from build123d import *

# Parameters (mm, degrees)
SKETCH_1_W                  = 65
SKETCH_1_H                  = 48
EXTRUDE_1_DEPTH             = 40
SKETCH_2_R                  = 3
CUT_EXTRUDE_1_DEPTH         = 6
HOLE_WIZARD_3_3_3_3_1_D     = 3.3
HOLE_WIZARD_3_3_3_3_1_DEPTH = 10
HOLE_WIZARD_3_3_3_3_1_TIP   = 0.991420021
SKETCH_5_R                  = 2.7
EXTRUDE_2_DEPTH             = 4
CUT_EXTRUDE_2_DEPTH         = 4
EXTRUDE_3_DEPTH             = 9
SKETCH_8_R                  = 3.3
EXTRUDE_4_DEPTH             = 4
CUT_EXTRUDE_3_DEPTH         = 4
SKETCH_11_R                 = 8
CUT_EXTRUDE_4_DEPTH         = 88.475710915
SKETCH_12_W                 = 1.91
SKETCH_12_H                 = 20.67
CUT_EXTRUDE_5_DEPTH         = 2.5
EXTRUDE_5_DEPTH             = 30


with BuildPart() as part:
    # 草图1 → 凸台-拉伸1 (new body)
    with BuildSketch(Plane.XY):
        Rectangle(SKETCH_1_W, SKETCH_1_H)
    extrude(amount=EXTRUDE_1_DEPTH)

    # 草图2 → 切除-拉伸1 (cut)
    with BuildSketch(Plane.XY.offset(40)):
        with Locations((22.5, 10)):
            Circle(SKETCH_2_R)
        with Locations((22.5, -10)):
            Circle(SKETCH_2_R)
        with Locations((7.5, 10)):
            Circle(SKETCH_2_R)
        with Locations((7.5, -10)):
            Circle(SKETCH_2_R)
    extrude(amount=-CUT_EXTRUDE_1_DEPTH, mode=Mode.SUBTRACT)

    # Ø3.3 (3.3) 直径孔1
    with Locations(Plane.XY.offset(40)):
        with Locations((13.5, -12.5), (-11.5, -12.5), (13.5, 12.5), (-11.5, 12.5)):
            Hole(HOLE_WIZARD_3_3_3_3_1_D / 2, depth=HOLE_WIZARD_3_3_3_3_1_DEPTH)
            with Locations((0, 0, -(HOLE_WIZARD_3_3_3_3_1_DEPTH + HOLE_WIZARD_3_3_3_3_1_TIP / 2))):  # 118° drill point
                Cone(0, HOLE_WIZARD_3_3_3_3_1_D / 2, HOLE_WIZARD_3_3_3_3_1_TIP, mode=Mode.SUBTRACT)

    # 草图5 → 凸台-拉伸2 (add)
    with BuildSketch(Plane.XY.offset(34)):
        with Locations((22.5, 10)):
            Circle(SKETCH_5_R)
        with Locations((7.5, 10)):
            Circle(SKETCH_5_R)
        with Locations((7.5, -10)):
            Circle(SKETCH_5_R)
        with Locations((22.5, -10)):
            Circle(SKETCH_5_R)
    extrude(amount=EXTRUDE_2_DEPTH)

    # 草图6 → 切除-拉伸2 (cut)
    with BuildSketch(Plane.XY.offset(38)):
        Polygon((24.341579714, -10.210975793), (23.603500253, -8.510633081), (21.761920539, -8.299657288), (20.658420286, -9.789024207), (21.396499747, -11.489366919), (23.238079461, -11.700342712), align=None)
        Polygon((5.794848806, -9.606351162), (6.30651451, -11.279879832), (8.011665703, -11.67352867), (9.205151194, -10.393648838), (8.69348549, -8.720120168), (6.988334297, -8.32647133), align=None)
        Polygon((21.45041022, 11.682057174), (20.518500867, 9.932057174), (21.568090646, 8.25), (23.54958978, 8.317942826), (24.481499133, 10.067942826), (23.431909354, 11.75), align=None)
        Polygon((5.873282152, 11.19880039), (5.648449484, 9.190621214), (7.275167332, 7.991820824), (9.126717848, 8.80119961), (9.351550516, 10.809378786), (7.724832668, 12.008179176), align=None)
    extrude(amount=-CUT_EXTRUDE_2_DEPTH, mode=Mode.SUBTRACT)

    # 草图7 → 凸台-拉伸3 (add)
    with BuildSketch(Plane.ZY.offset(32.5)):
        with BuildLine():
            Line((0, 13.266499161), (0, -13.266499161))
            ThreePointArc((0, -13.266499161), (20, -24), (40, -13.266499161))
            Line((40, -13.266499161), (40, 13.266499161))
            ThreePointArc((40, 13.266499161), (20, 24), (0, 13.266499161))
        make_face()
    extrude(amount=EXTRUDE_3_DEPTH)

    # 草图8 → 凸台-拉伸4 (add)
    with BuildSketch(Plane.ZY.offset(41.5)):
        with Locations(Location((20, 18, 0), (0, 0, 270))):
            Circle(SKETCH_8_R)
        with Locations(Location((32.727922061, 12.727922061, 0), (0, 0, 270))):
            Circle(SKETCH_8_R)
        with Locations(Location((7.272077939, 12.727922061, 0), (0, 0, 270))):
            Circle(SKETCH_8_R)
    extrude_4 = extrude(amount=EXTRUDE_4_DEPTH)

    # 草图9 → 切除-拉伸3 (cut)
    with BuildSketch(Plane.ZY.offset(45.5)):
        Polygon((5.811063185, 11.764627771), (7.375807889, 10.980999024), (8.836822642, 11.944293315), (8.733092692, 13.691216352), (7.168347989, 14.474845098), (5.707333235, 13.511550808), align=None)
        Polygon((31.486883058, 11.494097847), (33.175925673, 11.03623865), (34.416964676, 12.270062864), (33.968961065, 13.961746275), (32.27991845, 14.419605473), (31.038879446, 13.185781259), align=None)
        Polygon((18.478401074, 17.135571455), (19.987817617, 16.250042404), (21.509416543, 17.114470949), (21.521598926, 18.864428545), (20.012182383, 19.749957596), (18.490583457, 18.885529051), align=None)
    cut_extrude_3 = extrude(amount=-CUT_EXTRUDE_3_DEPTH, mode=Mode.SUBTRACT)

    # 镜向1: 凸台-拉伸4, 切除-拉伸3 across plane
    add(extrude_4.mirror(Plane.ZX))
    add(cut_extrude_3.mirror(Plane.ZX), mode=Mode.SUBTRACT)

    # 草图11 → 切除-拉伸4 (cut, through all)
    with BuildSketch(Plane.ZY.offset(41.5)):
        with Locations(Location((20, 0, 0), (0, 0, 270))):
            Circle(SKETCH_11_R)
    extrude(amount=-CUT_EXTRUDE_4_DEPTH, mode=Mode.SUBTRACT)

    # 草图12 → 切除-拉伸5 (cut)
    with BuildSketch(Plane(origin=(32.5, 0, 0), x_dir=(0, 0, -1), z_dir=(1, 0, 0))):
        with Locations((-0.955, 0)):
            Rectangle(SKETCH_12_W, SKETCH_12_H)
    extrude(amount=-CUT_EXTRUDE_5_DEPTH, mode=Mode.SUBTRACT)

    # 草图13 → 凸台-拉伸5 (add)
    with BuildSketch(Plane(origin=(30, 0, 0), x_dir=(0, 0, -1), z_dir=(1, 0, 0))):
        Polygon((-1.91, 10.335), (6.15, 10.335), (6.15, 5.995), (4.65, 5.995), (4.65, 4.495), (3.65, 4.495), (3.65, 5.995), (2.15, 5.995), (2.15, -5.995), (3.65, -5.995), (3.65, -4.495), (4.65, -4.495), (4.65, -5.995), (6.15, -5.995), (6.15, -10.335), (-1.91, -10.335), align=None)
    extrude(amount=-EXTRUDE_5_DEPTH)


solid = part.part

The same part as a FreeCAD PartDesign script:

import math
import FreeCAD as App
import Part
import Sketcher

V = App.Vector
Q = App.Units.Quantity

doc = App.newDocument("Part")
params = doc.addObject("Spreadsheet::Sheet", "Params")
for row, (alias, value) in enumerate([
    ("sketch1_width", "65 mm"),
    ("sketch1_height", "48 mm"),
    ("pad1_length", "40 mm"),
    ("sketch2_diameter", "6 mm"),
    ("pocket1_length", "6 mm"),
    ("sketch3_diameter", "3.3 mm"),
    ("hole_diameter", "3.3 mm"),
    ("hole_depth", "10 mm"),
    ("sketch4_diameter", "5.4 mm"),
    ("pad2_length", "4 mm"),
    ("sketch5_length", "1.75 mm"),
    ("pocket2_length", "4 mm"),
    ("sketch6_radius", "24 mm"),
    ("pad3_length", "9 mm"),
    ("sketch7_diameter", "6.6 mm"),
    ("pad4_length", "4 mm"),
    ("sketch8_length", "1.75 mm"),
    ("pocket3_length", "4 mm"),
    ("sketch9_diameter", "16 mm"),
    ("sketch10_width", "20.67 mm"),
    ("sketch10_height", "1.91 mm"),
    ("pocket5_length", "2.5 mm"),
    ("sketch11_height", "1 mm"),
    ("sketch11_width", "1.5 mm"),
    ("sketch11_width2", "20.67 mm"),
    ("sketch11_width3", "4.34 mm"),
    ("sketch11_height2", "8.06 mm"),
    ("pad5_length", "30 mm"),
], start=1):
    params.set(f"A{row}", alias)
    params.set(f"B{row}", "=" + value)
    params.setAlias(f"B{row}", alias)

body = doc.addObject("PartDesign::Body", "Body")

# Sketch on XY plane
sketch1 = doc.addObject("Sketcher::SketchObject", "Sketch")
body.addObject(sketch1)
sketch1.AttachmentSupport = (doc.XY_Plane, [""])
sketch1.MapMode = "FlatFace"
sketch1.addGeometry([
    Part.LineSegment(V(-32.5, 24, 0), V(-32.5, -24, 0)),
    Part.LineSegment(V(-32.5, -24, 0), V(32.5, -24, 0)),
    Part.LineSegment(V(32.5, -24, 0), V(32.5, 24, 0)),
    Part.LineSegment(V(32.5, 24, 0), V(-32.5, 24, 0)),
], False)
sketch1.addConstraint([
    Sketcher.Constraint("Coincident", 0, 2, 1, 1),
    Sketcher.Constraint("Coincident", 1, 2, 2, 1),
    Sketcher.Constraint("Coincident", 2, 2, 3, 1),
    Sketcher.Constraint("Coincident", 3, 2, 0, 1),
    Sketcher.Constraint("Vertical", 0),
    Sketcher.Constraint("Horizontal", 1),
    Sketcher.Constraint("Vertical", 2),
    Sketcher.Constraint("Horizontal", 3),
    Sketcher.Constraint("Symmetric", 0, 2, 2, 2, -1, 1),
    Sketcher.Constraint("DistanceX", 1, 1, 1, 2, Q("65 mm")),
    Sketcher.Constraint("DistanceY", 0, 2, 0, 1, Q("48 mm")),
])
sketch1.setExpression("Constraints[9]", "Params.sketch1_width")
sketch1.setExpression("Constraints[10]", "Params.sketch1_height")
pad1 = doc.addObject("PartDesign::Pad", "Pad")
body.addObject(pad1)
pad1.Profile = sketch1
pad1.setExpression("Length", "Params.pad1_length")

# Sketch on XY plane
sketch2 = doc.addObject("Sketcher::SketchObject", "Sketch001")
body.addObject(sketch2)
sketch2.AttachmentSupport = (doc.XY_Plane, [""])
sketch2.MapMode = "FlatFace"
sketch2.AttachmentOffset = App.Placement(V(0, 0, 40), App.Rotation())
sketch2.addGeometry([
    Part.Circle(V(22.5, 10, 0), V(0, 0, 1), 3),
    Part.Circle(V(22.5, -10, 0), V(0, 0, 1), 3),
    Part.Circle(V(7.5, 10, 0), V(0, 0, 1), 3),
    Part.Circle(V(7.5, -10, 0), V(0, 0, 1), 3),
], False)
sketch2.addConstraint([
    Sketcher.Constraint("Equal", 0, 1),
    Sketcher.Constraint("Equal", 1, 2),
    Sketcher.Constraint("Equal", 2, 3),
    Sketcher.Constraint("Symmetric", 0, 3, 1, 3, -1),
    Sketcher.Constraint("Symmetric", 2, 3, 3, 3, -1),
    Sketcher.Constraint("Horizontal", 0, 3, 2, 3),
    Sketcher.Constraint("Diameter", 0, Q("6 mm")),
    Sketcher.Constraint("DistanceY", -1, 1, 0, 3, Q("10 mm")),
    Sketcher.Constraint("DistanceX", 2, 3, 0, 3, Q("15 mm")),
    Sketcher.Constraint("DistanceX", -1, 1, 0, 3, Q("22.5 mm")),
])
sketch2.setExpression("Constraints[6]", "Params.sketch2_diameter")
pocket1 = doc.addObject("PartDesign::Pocket", "Pocket")
body.addObject(pocket1)
pocket1.Profile = sketch2
pocket1.setExpression("Length", "Params.pocket1_length")

# Sketch on XY plane
sketch3 = doc.addObject("Sketcher::SketchObject", "Sketch002")
body.addObject(sketch3)
sketch3.AttachmentSupport = (doc.XY_Plane, [""])
sketch3.MapMode = "FlatFace"
sketch3.AttachmentOffset = App.Placement(V(0, 0, 40), App.Rotation())
sketch3.addGeometry([
    Part.Circle(V(13.5, -12.5, 0), V(0, 0, 1), 1.65),
    Part.Circle(V(-11.5, -12.5, 0), V(0, 0, 1), 1.65),
    Part.Circle(V(13.5, 12.5, 0), V(0, 0, 1), 1.65),
    Part.Circle(V(-11.5, 12.5, 0), V(0, 0, 1), 1.65),
], False)
sketch3.addConstraint([
    Sketcher.Constraint("Equal", 0, 1),
    Sketcher.Constraint("Equal", 1, 2),
    Sketcher.Constraint("Equal", 2, 3),
    Sketcher.Constraint("Symmetric", 0, 3, 2, 3, -1),
    Sketcher.Constraint("Symmetric", 1, 3, 3, 3, -1),
    Sketcher.Constraint("Horizontal", 0, 3, 1, 3),
    Sketcher.Constraint("Diameter", 0, Q("3.3 mm")),
    Sketcher.Constraint("DistanceX", 1, 3, 0, 3, Q("25 mm")),
    Sketcher.Constraint("DistanceY", 0, 3, 2, 3, Q("25 mm")),
    Sketcher.Constraint("DistanceX", -1, 1, 0, 3, Q("13.5 mm")),
])
sketch3.setExpression("Constraints[6]", "Params.sketch3_diameter")
doc.recompute()
hole = doc.addObject("PartDesign::Hole", "Hole")
body.addObject(hole)
hole.Profile = sketch3
hole.ThreadType = "None"
hole.setExpression("Diameter", "Params.hole_diameter")
hole.DepthType = "Dimension"
hole.setExpression("Depth", "Params.hole_depth")
hole.DrillPoint = "Angled"
hole.DrillPointAngle = 118

# Sketch on XY plane
sketch4 = doc.addObject("Sketcher::SketchObject", "Sketch003")
body.addObject(sketch4)
sketch4.AttachmentSupport = (doc.XY_Plane, [""])
sketch4.MapMode = "FlatFace"
sketch4.AttachmentOffset = App.Placement(V(0, 0, 34), App.Rotation())
sketch4.addGeometry([
    Part.Circle(V(22.5, 10, 0), V(0, 0, 1), 2.7),
    Part.Circle(V(7.5, 10, 0), V(0, 0, 1), 2.7),
    Part.Circle(V(7.5, -10, 0), V(0, 0, 1), 2.7),
    Part.Circle(V(22.5, -10, 0), V(0, 0, 1), 2.7),
], False)
sketch4.addConstraint([
    Sketcher.Constraint("Equal", 0, 1),
    Sketcher.Constraint("Equal", 1, 2),
    Sketcher.Constraint("Equal", 2, 3),
    Sketcher.Constraint("Symmetric", 1, 3, 2, 3, -1),
    Sketcher.Constraint("Symmetric", 0, 3, 3, 3, -1),
    Sketcher.Constraint("Horizontal", 0, 3, 1, 3),
    Sketcher.Constraint("Diameter", 0, Q("5.4 mm")),
    Sketcher.Constraint("DistanceY", -1, 1, 0, 3, Q("10 mm")),
    Sketcher.Constraint("DistanceX", 1, 3, 0, 3, Q("15 mm")),
    Sketcher.Constraint("DistanceX", -1, 1, 0, 3, Q("22.5 mm")),
])
sketch4.setExpression("Constraints[6]", "Params.sketch4_diameter")
pad2 = doc.addObject("PartDesign::Pad", "Pad001")
body.addObject(pad2)
pad2.Profile = sketch4
pad2.setExpression("Length", "Params.pad2_length")

# Sketch on XY plane
sketch5 = doc.addObject("Sketcher::SketchObject", "Sketch004")
body.addObject(sketch5)
sketch5.AttachmentSupport = (doc.XY_Plane, [""])
sketch5.MapMode = "FlatFace"
sketch5.AttachmentOffset = App.Placement(V(0, 0, 38), App.Rotation())
sketch5.addGeometry([
    Part.LineSegment(V(24.34158, -10.210976, 0), V(23.6035, -8.510633, 0)),  # 0
    Part.LineSegment(V(23.6035, -8.510633, 0), V(21.761921, -8.299657, 0)),  # 1
    Part.LineSegment(V(21.761921, -8.299657, 0), V(20.65842, -9.789024, 0)),  # 2
    Part.LineSegment(V(20.65842, -9.789024, 0), V(21.3965, -11.489367, 0)),  # 3
    Part.LineSegment(V(21.3965, -11.489367, 0), V(23.238079, -11.700343, 0)),  # 4
    Part.LineSegment(V(23.238079, -11.700343, 0), V(24.34158, -10.210976, 0)),  # 5
    Part.LineSegment(V(5.794849, -9.606351, 0), V(6.306515, -11.27988, 0)),  # 6
    Part.LineSegment(V(6.306515, -11.27988, 0), V(8.011666, -11.673529, 0)),  # 7
    Part.LineSegment(V(8.011666, -11.673529, 0), V(9.205151, -10.393649, 0)),  # 8
    Part.LineSegment(V(9.205151, -10.393649, 0), V(8.693485, -8.72012, 0)),  # 9
    Part.LineSegment(V(8.693485, -8.72012, 0), V(6.988334, -8.326471, 0)),  # 10
    Part.LineSegment(V(6.988334, -8.326471, 0), V(5.794849, -9.606351, 0)),  # 11
    Part.LineSegment(V(21.45041, 11.682057, 0), V(20.518501, 9.932057, 0)),  # 12
    Part.LineSegment(V(20.518501, 9.932057, 0), V(21.568091, 8.25, 0)),  # 13
    Part.LineSegment(V(21.568091, 8.25, 0), V(23.54959, 8.317943, 0)),  # 14
    Part.LineSegment(V(23.54959, 8.317943, 0), V(24.481499, 10.067943, 0)),  # 15
    Part.LineSegment(V(24.481499, 10.067943, 0), V(23.431909, 11.75, 0)),  # 16
    Part.LineSegment(V(23.431909, 11.75, 0), V(21.45041, 11.682057, 0)),  # 17
    Part.LineSegment(V(5.873282, 11.1988, 0), V(5.648449, 9.190621, 0)),  # 18
    Part.LineSegment(V(5.648449, 9.190621, 0), V(7.275167, 7.991821, 0)),  # 19
    Part.LineSegment(V(7.275167, 7.991821, 0), V(9.126718, 8.8012, 0)),  # 20
    Part.LineSegment(V(9.126718, 8.8012, 0), V(9.351551, 10.809379, 0)),  # 21
    Part.LineSegment(V(9.351551, 10.809379, 0), V(7.724833, 12.008179, 0)),  # 22
    Part.LineSegment(V(7.724833, 12.008179, 0), V(5.873282, 11.1988, 0)),  # 23
], False)
sketch5.addConstraint([
    Sketcher.Constraint("Coincident", 0, 2, 1, 1),
    Sketcher.Constraint("Coincident", 1, 2, 2, 1),
    Sketcher.Constraint("Coincident", 2, 2, 3, 1),
    Sketcher.Constraint("Coincident", 3, 2, 4, 1),
    Sketcher.Constraint("Coincident", 4, 2, 5, 1),
    Sketcher.Constraint("Coincident", 5, 2, 0, 1),
    Sketcher.Constraint("Coincident", 6, 2, 7, 1),
    Sketcher.Constraint("Coincident", 7, 2, 8, 1),
    Sketcher.Constraint("Coincident", 8, 2, 9, 1),
    Sketcher.Constraint("Coincident", 9, 2, 10, 1),
    Sketcher.Constraint("Coincident", 10, 2, 11, 1),
    Sketcher.Constraint("Coincident", 11, 2, 6, 1),
    Sketcher.Constraint("Coincident", 12, 2, 13, 1),
    Sketcher.Constraint("Coincident", 13, 2, 14, 1),
    Sketcher.Constraint("Coincident", 14, 2, 15, 1),
    Sketcher.Constraint("Coincident", 15, 2, 16, 1),
    Sketcher.Constraint("Coincident", 16, 2, 17, 1),
    Sketcher.Constraint("Coincident", 17, 2, 12, 1),
    Sketcher.Constraint("Coincident", 18, 2, 19, 1),
    Sketcher.Constraint("Coincident", 19, 2, 20, 1),
    Sketcher.Constraint("Coincident", 20, 2, 21, 1),
    Sketcher.Constraint("Coincident", 21, 2, 22, 1),
    Sketcher.Constraint("Coincident", 22, 2, 23, 1),
    Sketcher.Constraint("Coincident", 23, 2, 18, 1),
    Sketcher.Constraint("Parallel", 0, 3),
    Sketcher.Constraint("Parallel", 1, 4),
    Sketcher.Constraint("Parallel", 2, 5),
    Sketcher.Constraint("Parallel", 6, 9),
    Sketcher.Constraint("Parallel", 7, 10),
    Sketcher.Constraint("Parallel", 8, 11),
    Sketcher.Constraint("Parallel", 12, 15),
    Sketcher.Constraint("Parallel", 13, 16),
    Sketcher.Constraint("Parallel", 14, 17),
    Sketcher.Constraint("Parallel", 18, 21),
    Sketcher.Constraint("Parallel", 19, 22),
    Sketcher.Constraint("Parallel", 20, 23),
    Sketcher.Constraint("Equal", 0, 1),
    Sketcher.Constraint("Equal", 1, 2),
    Sketcher.Constraint("Equal", 2, 3),
    Sketcher.Constraint("Equal", 6, 7),
    Sketcher.Constraint("Equal", 7, 8),
    Sketcher.Constraint("Equal", 8, 9),
    Sketcher.Constraint("Equal", 12, 13),
    Sketcher.Constraint("Equal", 13, 14),
    Sketcher.Constraint("Equal", 14, 15),
    Sketcher.Constraint("Equal", 18, 19),
    Sketcher.Constraint("Equal", 19, 20),
    Sketcher.Constraint("Equal", 20, 21),
    Sketcher.Constraint("DistanceY", 13, 2, 16, 2, Q("3.5 mm")),
    Sketcher.Constraint("Distance", 6, Q("1.75 mm")),
    Sketcher.Constraint("DistanceY", -1, 1, 13, 2, Q("8.25 mm")),
    Sketcher.Constraint("DistanceY", 14, 2, 15, 2, Q("1.75 mm")),
    Sketcher.Constraint("DistanceX", 3, 2, 0, 2, Q("2.207001 mm")),
    Sketcher.Constraint("DistanceX", 12, 2, 0, 2, Q("3.084999 mm")),
    Sketcher.Constraint("DistanceX", 12, 2, 15, 2, Q("3.962998 mm")),
    Sketcher.Constraint("DistanceX", -1, 1, 0, 2, Q("23.6035 mm")),
    Sketcher.Constraint("DistanceY", -1, 1, 20, 2, Q("8.8012 mm")),
    Sketcher.Constraint("DistanceY", -1, 1, 23, 2, Q("11.1988 mm")),
    Sketcher.Constraint("DistanceX", 2, 2, 1, 2, Q("1.1035 mm")),
    Sketcher.Constraint("DistanceX", 13, 2, 14, 2, Q("1.981499 mm")),
    Sketcher.Constraint("DistanceY", 1, 2, 14, 2, Q("16.6176 mm")),
    Sketcher.Constraint("DistanceY", 19, 2, 18, 2, Q("1.1988 mm")),
    Sketcher.Constraint("DistanceX", 18, 2, 21, 2, Q("3.703101 mm")),
    Sketcher.Constraint("DistanceX", -1, 1, 1, 2, Q("21.761921 mm")),
    Sketcher.Constraint("DistanceY", 6, 2, -1, 1, Q("11.27988 mm")),
    Sketcher.Constraint("DistanceY", 7, 2, -1, 1, Q("11.673529 mm")),
    Sketcher.Constraint("DistanceX", -1, 1, 8, 2, Q("9.205151 mm")),
    Sketcher.Constraint("DistanceY", 8, 2, -1, 1, Q("10.393649 mm")),
    Sketcher.Constraint("DistanceY", 9, 2, -1, 1, Q("8.72012 mm")),
    Sketcher.Constraint("DistanceX", -1, 1, 18, 2, Q("5.648449 mm")),
    Sketcher.Constraint("DistanceY", -1, 1, 18, 2, Q("9.190621 mm")),
    Sketcher.Constraint("DistanceY", 2, 2, 0, 2, Q("1.278391 mm")),
])
sketch5.setExpression("Constraints[49]", "Params.sketch5_length")
pocket2 = doc.addObject("PartDesign::Pocket", "Pocket001")
body.addObject(pocket2)
pocket2.Profile = sketch5
pocket2.setExpression("Length", "Params.pocket2_length")

# Sketch on YZ plane
sketch6 = doc.addObject("Sketcher::SketchObject", "Sketch005")
body.addObject(sketch6)
sketch6.AttachmentSupport = (doc.YZ_Plane, [""])
sketch6.MapMode = "FlatFace"
sketch6.AttachmentOffset = App.Placement(V(0, 0, -32.5), App.Rotation())
sketch6.addGeometry([
    Part.LineSegment(V(13.266499, 0, 0), V(-13.266499, 0, 0)),
    Part.ArcOfCircle(Part.Circle(V(0, 20, 0), V(0, 0, 1), 24), math.radians(123.55731), math.radians(236.44269)),
    Part.LineSegment(V(-13.266499, 40, 0), V(13.266499, 40, 0)),
    Part.ArcOfCircle(Part.Circle(V(0, 20, 0), V(0, 0, 1), 24), math.radians(-56.44269), math.radians(56.44269)),
], False)
sketch6.addConstraint([
    Sketcher.Constraint("Coincident", 0, 2, 1, 2),
    Sketcher.Constraint("Coincident", 1, 1, 2, 1),
    Sketcher.Constraint("Coincident", 2, 2, 3, 2),
    Sketcher.Constraint("Coincident", 3, 1, 0, 1),
    Sketcher.Constraint("Horizontal", 0),
    Sketcher.Constraint("Horizontal", 2),
    Sketcher.Constraint("Coincident", 3, 3, 1, 3),
    Sketcher.Constraint("Equal", 1, 3),
    Sketcher.Constraint("Symmetric", 0, 2, 3, 1, -1, 1),
    Sketcher.Constraint("Vertical", 0, 2, 1, 1),
    Sketcher.Constraint("Radius", 1, Q("24 mm")),
    Sketcher.Constraint("DistanceY", -1, 1, 1, 3, Q("20 mm")),
])
sketch6.setExpression("Constraints[10]", "Params.sketch6_radius")
pad3 = doc.addObject("PartDesign::Pad", "Pad002")
body.addObject(pad3)
pad3.Profile = sketch6
pad3.setExpression("Length", "Params.pad3_length")
pad3.Reversed = True

# Sketch on YZ plane
sketch7 = doc.addObject("Sketcher::SketchObject", "Sketch006")
body.addObject(sketch7)
sketch7.AttachmentSupport = (doc.YZ_Plane, [""])
sketch7.MapMode = "FlatFace"
sketch7.AttachmentOffset = App.Placement(V(0, 0, -41.5), App.Rotation())
sketch7.addGeometry([
    Part.Circle(V(18, 20, 0), V(0, 0, 1), 3.3),
    Part.Circle(V(12.727922, 32.727922, 0), V(0, 0, 1), 3.3),
    Part.Circle(V(12.727922, 7.272078, 0), V(0, 0, 1), 3.3),
], False)
sketch7.addConstraint([
    Sketcher.Constraint("Equal", 0, 1),
    Sketcher.Constraint("Equal", 1, 2),
    Sketcher.Constraint("Vertical", 1, 3, 2, 3),
    Sketcher.Constraint("Diameter", 0, Q("6.6 mm")),
    Sketcher.Constraint("DistanceX", -1, 1, 0, 3, Q("18 mm")),
    Sketcher.Constraint("DistanceY", -1, 1, 0, 3, Q("20 mm")),
    Sketcher.Constraint("DistanceX", -1, 1, 1, 3, Q("12.727922 mm")),
    Sketcher.Constraint("DistanceY", -1, 1, 1, 3, Q("32.727922 mm")),
    Sketcher.Constraint("DistanceY", -1, 1, 2, 3, Q("7.272078 mm")),
])
sketch7.setExpression("Constraints[3]", "Params.sketch7_diameter")
pad4 = doc.addObject("PartDesign::Pad", "Pad003")
body.addObject(pad4)
pad4.Profile = sketch7
pad4.setExpression("Length", "Params.pad4_length")
pad4.Reversed = True

# Sketch on YZ plane
sketch8 = doc.addObject("Sketcher::SketchObject", "Sketch007")
body.addObject(sketch8)
sketch8.AttachmentSupport = (doc.YZ_Plane, [""])
sketch8.MapMode = "FlatFace"
sketch8.AttachmentOffset = App.Placement(V(0, 0, -45.5), App.Rotation())
sketch8.addGeometry([
    Part.LineSegment(V(11.764628, 5.811063, 0), V(10.980999, 7.375808, 0)),  # 0
    Part.LineSegment(V(10.980999, 7.375808, 0), V(11.944293, 8.836823, 0)),  # 1
    Part.LineSegment(V(11.944293, 8.836823, 0), V(13.691216, 8.733093, 0)),  # 2
    Part.LineSegment(V(13.691216, 8.733093, 0), V(14.474845, 7.168348, 0)),  # 3
    Part.LineSegment(V(14.474845, 7.168348, 0), V(13.511551, 5.707333, 0)),  # 4
    Part.LineSegment(V(13.511551, 5.707333, 0), V(11.764628, 5.811063, 0)),  # 5
    Part.LineSegment(V(11.494098, 31.486883, 0), V(11.036239, 33.175926, 0)),  # 6
    Part.LineSegment(V(11.036239, 33.175926, 0), V(12.270063, 34.416965, 0)),  # 7
    Part.LineSegment(V(12.270063, 34.416965, 0), V(13.961746, 33.968961, 0)),  # 8
    Part.LineSegment(V(13.961746, 33.968961, 0), V(14.419605, 32.279918, 0)),  # 9
    Part.LineSegment(V(14.419605, 32.279918, 0), V(13.185781, 31.038879, 0)),  # 10
    Part.LineSegment(V(13.185781, 31.038879, 0), V(11.494098, 31.486883, 0)),  # 11
    Part.LineSegment(V(17.135571, 18.478401, 0), V(16.250042, 19.987818, 0)),  # 12
    Part.LineSegment(V(16.250042, 19.987818, 0), V(17.114471, 21.509417, 0)),  # 13
    Part.LineSegment(V(17.114471, 21.509417, 0), V(18.864429, 21.521599, 0)),  # 14
    Part.LineSegment(V(18.864429, 21.521599, 0), V(19.749958, 20.012182, 0)),  # 15
    Part.LineSegment(V(19.749958, 20.012182, 0), V(18.885529, 18.490583, 0)),  # 16
    Part.LineSegment(V(18.885529, 18.490583, 0), V(17.135571, 18.478401, 0)),  # 17
], False)
sketch8.addConstraint([
    Sketcher.Constraint("Coincident", 0, 2, 1, 1),
    Sketcher.Constraint("Coincident", 1, 2, 2, 1),
    Sketcher.Constraint("Coincident", 2, 2, 3, 1),
    Sketcher.Constraint("Coincident", 3, 2, 4, 1),
    Sketcher.Constraint("Coincident", 4, 2, 5, 1),
    Sketcher.Constraint("Coincident", 5, 2, 0, 1),
    Sketcher.Constraint("Coincident", 6, 2, 7, 1),
    Sketcher.Constraint("Coincident", 7, 2, 8, 1),
    Sketcher.Constraint("Coincident", 8, 2, 9, 1),
    Sketcher.Constraint("Coincident", 9, 2, 10, 1),
    Sketcher.Constraint("Coincident", 10, 2, 11, 1),
    Sketcher.Constraint("Coincident", 11, 2, 6, 1),
    Sketcher.Constraint("Coincident", 12, 2, 13, 1),
    Sketcher.Constraint("Coincident", 13, 2, 14, 1),
    Sketcher.Constraint("Coincident", 14, 2, 15, 1),
    Sketcher.Constraint("Coincident", 15, 2, 16, 1),
    Sketcher.Constraint("Coincident", 16, 2, 17, 1),
    Sketcher.Constraint("Coincident", 17, 2, 12, 1),
    Sketcher.Constraint("Parallel", 0, 3),
    Sketcher.Constraint("Parallel", 1, 4),
    Sketcher.Constraint("Parallel", 2, 5),
    Sketcher.Constraint("Parallel", 6, 9),
    Sketcher.Constraint("Parallel", 7, 10),
    Sketcher.Constraint("Parallel", 8, 11),
    Sketcher.Constraint("Parallel", 12, 15),
    Sketcher.Constraint("Parallel", 13, 16),
    Sketcher.Constraint("Parallel", 14, 17),
    Sketcher.Constraint("Equal", 0, 1),
    Sketcher.Constraint("Equal", 1, 2),
    Sketcher.Constraint("Equal", 2, 3),
    Sketcher.Constraint("Equal", 5, 6),
    Sketcher.Constraint("Equal", 6, 7),
    Sketcher.Constraint("Equal", 7, 8),
    Sketcher.Constraint("Equal", 8, 9),
    Sketcher.Constraint("Equal", 11, 12),
    Sketcher.Constraint("Equal", 12, 13),
    Sketcher.Constraint("Equal", 13, 14),
    Sketcher.Constraint("Equal", 14, 15),
    Sketcher.Constraint("Distance", 0, Q("1.75 mm")),
    Sketcher.Constraint("DistanceX", -1, 1, 0, 2, Q("10.980999 mm")),
    Sketcher.Constraint("DistanceY", -1, 1, 14, 2, Q("21.521599 mm")),
    Sketcher.Constraint("DistanceY", -1, 1, 17, 2, Q("18.478401 mm")),
    Sketcher.Constraint("DistanceY", 12, 2, 9, 2, Q("12.292101 mm")),
    Sketcher.Constraint("DistanceY", 12, 2, 13, 2, Q("1.521599 mm")),
    Sketcher.Constraint("DistanceX", 14, 2, 16, 2, Q("0.021101 mm")),
    Sketcher.Constraint("DistanceX", -1, 1, 4, 2, Q("13.511551 mm")),
    Sketcher.Constraint("DistanceX", -1, 1, 6, 2, Q("11.036239 mm")),
    Sketcher.Constraint("DistanceY", -1, 1, 8, 2, Q("33.968961 mm")),
    Sketcher.Constraint("DistanceX", -1, 1, 10, 2, Q("13.185781 mm")),
    Sketcher.Constraint("DistanceY", -1, 1, 10, 2, Q("31.038879 mm")),
    Sketcher.Constraint("DistanceX", -1, 1, 13, 2, Q("17.114471 mm")),
    Sketcher.Constraint("DistanceY", 2, 2, 1, 2, Q("0.10373 mm")),
    Sketcher.Constraint("DistanceY", 3, 2, 0, 2, Q("0.20746 mm")),
    Sketcher.Constraint("DistanceY", 2, 2, 7, 2, Q("25.683872 mm")),
])
sketch8.setExpression("Constraints[38]", "Params.sketch8_length")
pocket3 = doc.addObject("PartDesign::Pocket", "Pocket002")
body.addObject(pocket3)
pocket3.Profile = sketch8
pocket3.setExpression("Length", "Params.pocket3_length")
pocket3.Reversed = True
doc.recompute()

mirrored = doc.addObject("PartDesign::Mirrored", "Mirrored")
body.addObject(mirrored)
mirrored.Originals = [pad4, pocket3]
mirrored.MirrorPlane = (doc.XZ_Plane, [""])
body.Tip = mirrored

# Sketch on YZ plane
sketch9 = doc.addObject("Sketcher::SketchObject", "Sketch008")
body.addObject(sketch9)
sketch9.AttachmentSupport = (doc.YZ_Plane, [""])
sketch9.MapMode = "FlatFace"
sketch9.AttachmentOffset = App.Placement(V(0, 0, -41.5), App.Rotation())
sketch9.addGeometry(Part.Circle(V(0, 20, 0), V(0, 0, 1), 8), False)
sketch9.addConstraint([
    Sketcher.Constraint("PointOnObject", 0, 3, -2),
    Sketcher.Constraint("Diameter", 0, Q("16 mm")),
    Sketcher.Constraint("DistanceY", -1, 1, 0, 3, Q("20 mm")),
])
sketch9.setExpression("Constraints[1]", "Params.sketch9_diameter")
pocket4 = doc.addObject("PartDesign::Pocket", "Pocket003")
body.addObject(pocket4)
pocket4.Profile = sketch9
pocket4.Type = "ThroughAll"
pocket4.Reversed = True

# Sketch on YZ plane
sketch10 = doc.addObject("Sketcher::SketchObject", "Sketch009")
body.addObject(sketch10)
sketch10.AttachmentSupport = (doc.YZ_Plane, [""])
sketch10.MapMode = "FlatFace"
sketch10.AttachmentOffset = App.Placement(V(0, 0, 32.5), App.Rotation())
sketch10.addGeometry([
    Part.LineSegment(V(10.335, 1.91, 0), V(-10.335, 1.91, 0)),
    Part.LineSegment(V(-10.335, 1.91, 0), V(-10.335, 0, 0)),
    Part.LineSegment(V(-10.335, 0, 0), V(10.335, 0, 0)),
    Part.LineSegment(V(10.335, 0, 0), V(10.335, 1.91, 0)),
], False)
sketch10.addConstraint([
    Sketcher.Constraint("Coincident", 0, 2, 1, 1),
    Sketcher.Constraint("Coincident", 1, 2, 2, 1),
    Sketcher.Constraint("Coincident", 2, 2, 3, 1),
    Sketcher.Constraint("Coincident", 3, 2, 0, 1),
    Sketcher.Constraint("Horizontal", 0),
    Sketcher.Constraint("Vertical", 1),
    Sketcher.Constraint("Horizontal", 2),
    Sketcher.Constraint("Vertical", 3),
    Sketcher.Constraint("Symmetric", 1, 2, 2, 2, -1, 1),
    Sketcher.Constraint("DistanceX", 0, 2, 0, 1, Q("20.67 mm")),
    Sketcher.Constraint("DistanceY", 1, 2, 1, 1, Q("1.91 mm")),
])
sketch10.setExpression("Constraints[9]", "Params.sketch10_width")
sketch10.setExpression("Constraints[10]", "Params.sketch10_height")
pocket5 = doc.addObject("PartDesign::Pocket", "Pocket004")
body.addObject(pocket5)
pocket5.Profile = sketch10
pocket5.setExpression("Length", "Params.pocket5_length")

# Sketch on YZ plane
sketch11 = doc.addObject("Sketcher::SketchObject", "Sketch010")
body.addObject(sketch11)
sketch11.AttachmentSupport = (doc.YZ_Plane, [""])
sketch11.MapMode = "FlatFace"
sketch11.AttachmentOffset = App.Placement(V(0, 0, 30), App.Rotation())
sketch11.addGeometry([
    Part.LineSegment(V(10.335, -6.15, 0), V(10.335, 1.91, 0)),  # 0
    Part.LineSegment(V(10.335, 1.91, 0), V(-10.335, 1.91, 0)),  # 1
    Part.LineSegment(V(-10.335, 1.91, 0), V(-10.335, -6.15, 0)),  # 2
    Part.LineSegment(V(-10.335, -6.15, 0), V(-5.995, -6.15, 0)),  # 3
    Part.LineSegment(V(-5.995, -6.15, 0), V(-5.995, -4.65, 0)),  # 4
    Part.LineSegment(V(-5.995, -4.65, 0), V(-4.495, -4.65, 0)),  # 5
    Part.LineSegment(V(-4.495, -4.65, 0), V(-4.495, -3.65, 0)),  # 6
    Part.LineSegment(V(-4.495, -3.65, 0), V(-5.995, -3.65, 0)),  # 7
    Part.LineSegment(V(-5.995, -3.65, 0), V(-5.995, -2.15, 0)),  # 8
    Part.LineSegment(V(-5.995, -2.15, 0), V(5.995, -2.15, 0)),  # 9
    Part.LineSegment(V(5.995, -2.15, 0), V(5.995, -3.65, 0)),  # 10
    Part.LineSegment(V(5.995, -3.65, 0), V(4.495, -3.65, 0)),  # 11
    Part.LineSegment(V(4.495, -3.65, 0), V(4.495, -4.65, 0)),  # 12
    Part.LineSegment(V(4.495, -4.65, 0), V(5.995, -4.65, 0)),  # 13
    Part.LineSegment(V(5.995, -4.65, 0), V(5.995, -6.15, 0)),  # 14
    Part.LineSegment(V(5.995, -6.15, 0), V(10.335, -6.15, 0)),  # 15
], False)
sketch11.addConstraint([
    Sketcher.Constraint("Coincident", 0, 2, 1, 1),
    Sketcher.Constraint("Coincident", 1, 2, 2, 1),
    Sketcher.Constraint("Coincident", 2, 2, 3, 1),
    Sketcher.Constraint("Coincident", 3, 2, 4, 1),
    Sketcher.Constraint("Coincident", 4, 2, 5, 1),
    Sketcher.Constraint("Coincident", 5, 2, 6, 1),
    Sketcher.Constraint("Coincident", 6, 2, 7, 1),
    Sketcher.Constraint("Coincident", 7, 2, 8, 1),
    Sketcher.Constraint("Coincident", 8, 2, 9, 1),
    Sketcher.Constraint("Coincident", 9, 2, 10, 1),
    Sketcher.Constraint("Coincident", 10, 2, 11, 1),
    Sketcher.Constraint("Coincident", 11, 2, 12, 1),
    Sketcher.Constraint("Coincident", 12, 2, 13, 1),
    Sketcher.Constraint("Coincident", 13, 2, 14, 1),
    Sketcher.Constraint("Coincident", 14, 2, 15, 1),
    Sketcher.Constraint("Coincident", 15, 2, 0, 1),
    Sketcher.Constraint("Vertical", 0),
    Sketcher.Constraint("Horizontal", 1),
    Sketcher.Constraint("Vertical", 2),
    Sketcher.Constraint("Horizontal", 3),
    Sketcher.Constraint("Vertical", 4),
    Sketcher.Constraint("Horizontal", 5),
    Sketcher.Constraint("Vertical", 6),
    Sketcher.Constraint("Horizontal", 7),
    Sketcher.Constraint("Vertical", 8),
    Sketcher.Constraint("Horizontal", 9),
    Sketcher.Constraint("Vertical", 10),
    Sketcher.Constraint("Horizontal", 11),
    Sketcher.Constraint("Vertical", 12),
    Sketcher.Constraint("Horizontal", 13),
    Sketcher.Constraint("Vertical", 14),
    Sketcher.Constraint("Horizontal", 15),
    Sketcher.Constraint("Symmetric", 7, 2, 10, 2, -2),
    Sketcher.Constraint("Symmetric", 5, 2, 12, 2, -2),
    Sketcher.Constraint("Symmetric", 3, 2, 14, 2, -2),
    Sketcher.Constraint("Vertical", 4, 2, 7, 2),
    Sketcher.Constraint("Equal", 3, 15),
    Sketcher.Constraint("Equal", 13, 4),
    Sketcher.Constraint("Equal", 4, 8),
    Sketcher.Constraint("DistanceY", 6, 1, 6, 2, Q("1 mm")),
    Sketcher.Constraint("DistanceX", 5, 1, 5, 2, Q("1.5 mm")),
    Sketcher.Constraint("DistanceX", 1, 2, 1, 1, Q("20.67 mm")),
    Sketcher.Constraint("DistanceX", 3, 1, 3, 2, Q("4.34 mm")),
    Sketcher.Constraint("DistanceY", 0, 1, 0, 2, Q("8.06 mm")),
    Sketcher.Constraint("DistanceY", -1, 1, 0, 2, Q("1.91 mm")),
])
sketch11.setExpression("Constraints[39]", "Params.sketch11_height")
sketch11.setExpression("Constraints[40]", "Params.sketch11_width")
sketch11.setExpression("Constraints[41]", "Params.sketch11_width2")
sketch11.setExpression("Constraints[42]", "Params.sketch11_width3")
sketch11.setExpression("Constraints[43]", "Params.sketch11_height2")
pad5 = doc.addObject("PartDesign::Pad", "Pad004")
body.addObject(pad5)
pad5.Profile = sketch11
pad5.setExpression("Length", "Params.pad5_length")
pad5.Reversed = True

doc.recompute()
